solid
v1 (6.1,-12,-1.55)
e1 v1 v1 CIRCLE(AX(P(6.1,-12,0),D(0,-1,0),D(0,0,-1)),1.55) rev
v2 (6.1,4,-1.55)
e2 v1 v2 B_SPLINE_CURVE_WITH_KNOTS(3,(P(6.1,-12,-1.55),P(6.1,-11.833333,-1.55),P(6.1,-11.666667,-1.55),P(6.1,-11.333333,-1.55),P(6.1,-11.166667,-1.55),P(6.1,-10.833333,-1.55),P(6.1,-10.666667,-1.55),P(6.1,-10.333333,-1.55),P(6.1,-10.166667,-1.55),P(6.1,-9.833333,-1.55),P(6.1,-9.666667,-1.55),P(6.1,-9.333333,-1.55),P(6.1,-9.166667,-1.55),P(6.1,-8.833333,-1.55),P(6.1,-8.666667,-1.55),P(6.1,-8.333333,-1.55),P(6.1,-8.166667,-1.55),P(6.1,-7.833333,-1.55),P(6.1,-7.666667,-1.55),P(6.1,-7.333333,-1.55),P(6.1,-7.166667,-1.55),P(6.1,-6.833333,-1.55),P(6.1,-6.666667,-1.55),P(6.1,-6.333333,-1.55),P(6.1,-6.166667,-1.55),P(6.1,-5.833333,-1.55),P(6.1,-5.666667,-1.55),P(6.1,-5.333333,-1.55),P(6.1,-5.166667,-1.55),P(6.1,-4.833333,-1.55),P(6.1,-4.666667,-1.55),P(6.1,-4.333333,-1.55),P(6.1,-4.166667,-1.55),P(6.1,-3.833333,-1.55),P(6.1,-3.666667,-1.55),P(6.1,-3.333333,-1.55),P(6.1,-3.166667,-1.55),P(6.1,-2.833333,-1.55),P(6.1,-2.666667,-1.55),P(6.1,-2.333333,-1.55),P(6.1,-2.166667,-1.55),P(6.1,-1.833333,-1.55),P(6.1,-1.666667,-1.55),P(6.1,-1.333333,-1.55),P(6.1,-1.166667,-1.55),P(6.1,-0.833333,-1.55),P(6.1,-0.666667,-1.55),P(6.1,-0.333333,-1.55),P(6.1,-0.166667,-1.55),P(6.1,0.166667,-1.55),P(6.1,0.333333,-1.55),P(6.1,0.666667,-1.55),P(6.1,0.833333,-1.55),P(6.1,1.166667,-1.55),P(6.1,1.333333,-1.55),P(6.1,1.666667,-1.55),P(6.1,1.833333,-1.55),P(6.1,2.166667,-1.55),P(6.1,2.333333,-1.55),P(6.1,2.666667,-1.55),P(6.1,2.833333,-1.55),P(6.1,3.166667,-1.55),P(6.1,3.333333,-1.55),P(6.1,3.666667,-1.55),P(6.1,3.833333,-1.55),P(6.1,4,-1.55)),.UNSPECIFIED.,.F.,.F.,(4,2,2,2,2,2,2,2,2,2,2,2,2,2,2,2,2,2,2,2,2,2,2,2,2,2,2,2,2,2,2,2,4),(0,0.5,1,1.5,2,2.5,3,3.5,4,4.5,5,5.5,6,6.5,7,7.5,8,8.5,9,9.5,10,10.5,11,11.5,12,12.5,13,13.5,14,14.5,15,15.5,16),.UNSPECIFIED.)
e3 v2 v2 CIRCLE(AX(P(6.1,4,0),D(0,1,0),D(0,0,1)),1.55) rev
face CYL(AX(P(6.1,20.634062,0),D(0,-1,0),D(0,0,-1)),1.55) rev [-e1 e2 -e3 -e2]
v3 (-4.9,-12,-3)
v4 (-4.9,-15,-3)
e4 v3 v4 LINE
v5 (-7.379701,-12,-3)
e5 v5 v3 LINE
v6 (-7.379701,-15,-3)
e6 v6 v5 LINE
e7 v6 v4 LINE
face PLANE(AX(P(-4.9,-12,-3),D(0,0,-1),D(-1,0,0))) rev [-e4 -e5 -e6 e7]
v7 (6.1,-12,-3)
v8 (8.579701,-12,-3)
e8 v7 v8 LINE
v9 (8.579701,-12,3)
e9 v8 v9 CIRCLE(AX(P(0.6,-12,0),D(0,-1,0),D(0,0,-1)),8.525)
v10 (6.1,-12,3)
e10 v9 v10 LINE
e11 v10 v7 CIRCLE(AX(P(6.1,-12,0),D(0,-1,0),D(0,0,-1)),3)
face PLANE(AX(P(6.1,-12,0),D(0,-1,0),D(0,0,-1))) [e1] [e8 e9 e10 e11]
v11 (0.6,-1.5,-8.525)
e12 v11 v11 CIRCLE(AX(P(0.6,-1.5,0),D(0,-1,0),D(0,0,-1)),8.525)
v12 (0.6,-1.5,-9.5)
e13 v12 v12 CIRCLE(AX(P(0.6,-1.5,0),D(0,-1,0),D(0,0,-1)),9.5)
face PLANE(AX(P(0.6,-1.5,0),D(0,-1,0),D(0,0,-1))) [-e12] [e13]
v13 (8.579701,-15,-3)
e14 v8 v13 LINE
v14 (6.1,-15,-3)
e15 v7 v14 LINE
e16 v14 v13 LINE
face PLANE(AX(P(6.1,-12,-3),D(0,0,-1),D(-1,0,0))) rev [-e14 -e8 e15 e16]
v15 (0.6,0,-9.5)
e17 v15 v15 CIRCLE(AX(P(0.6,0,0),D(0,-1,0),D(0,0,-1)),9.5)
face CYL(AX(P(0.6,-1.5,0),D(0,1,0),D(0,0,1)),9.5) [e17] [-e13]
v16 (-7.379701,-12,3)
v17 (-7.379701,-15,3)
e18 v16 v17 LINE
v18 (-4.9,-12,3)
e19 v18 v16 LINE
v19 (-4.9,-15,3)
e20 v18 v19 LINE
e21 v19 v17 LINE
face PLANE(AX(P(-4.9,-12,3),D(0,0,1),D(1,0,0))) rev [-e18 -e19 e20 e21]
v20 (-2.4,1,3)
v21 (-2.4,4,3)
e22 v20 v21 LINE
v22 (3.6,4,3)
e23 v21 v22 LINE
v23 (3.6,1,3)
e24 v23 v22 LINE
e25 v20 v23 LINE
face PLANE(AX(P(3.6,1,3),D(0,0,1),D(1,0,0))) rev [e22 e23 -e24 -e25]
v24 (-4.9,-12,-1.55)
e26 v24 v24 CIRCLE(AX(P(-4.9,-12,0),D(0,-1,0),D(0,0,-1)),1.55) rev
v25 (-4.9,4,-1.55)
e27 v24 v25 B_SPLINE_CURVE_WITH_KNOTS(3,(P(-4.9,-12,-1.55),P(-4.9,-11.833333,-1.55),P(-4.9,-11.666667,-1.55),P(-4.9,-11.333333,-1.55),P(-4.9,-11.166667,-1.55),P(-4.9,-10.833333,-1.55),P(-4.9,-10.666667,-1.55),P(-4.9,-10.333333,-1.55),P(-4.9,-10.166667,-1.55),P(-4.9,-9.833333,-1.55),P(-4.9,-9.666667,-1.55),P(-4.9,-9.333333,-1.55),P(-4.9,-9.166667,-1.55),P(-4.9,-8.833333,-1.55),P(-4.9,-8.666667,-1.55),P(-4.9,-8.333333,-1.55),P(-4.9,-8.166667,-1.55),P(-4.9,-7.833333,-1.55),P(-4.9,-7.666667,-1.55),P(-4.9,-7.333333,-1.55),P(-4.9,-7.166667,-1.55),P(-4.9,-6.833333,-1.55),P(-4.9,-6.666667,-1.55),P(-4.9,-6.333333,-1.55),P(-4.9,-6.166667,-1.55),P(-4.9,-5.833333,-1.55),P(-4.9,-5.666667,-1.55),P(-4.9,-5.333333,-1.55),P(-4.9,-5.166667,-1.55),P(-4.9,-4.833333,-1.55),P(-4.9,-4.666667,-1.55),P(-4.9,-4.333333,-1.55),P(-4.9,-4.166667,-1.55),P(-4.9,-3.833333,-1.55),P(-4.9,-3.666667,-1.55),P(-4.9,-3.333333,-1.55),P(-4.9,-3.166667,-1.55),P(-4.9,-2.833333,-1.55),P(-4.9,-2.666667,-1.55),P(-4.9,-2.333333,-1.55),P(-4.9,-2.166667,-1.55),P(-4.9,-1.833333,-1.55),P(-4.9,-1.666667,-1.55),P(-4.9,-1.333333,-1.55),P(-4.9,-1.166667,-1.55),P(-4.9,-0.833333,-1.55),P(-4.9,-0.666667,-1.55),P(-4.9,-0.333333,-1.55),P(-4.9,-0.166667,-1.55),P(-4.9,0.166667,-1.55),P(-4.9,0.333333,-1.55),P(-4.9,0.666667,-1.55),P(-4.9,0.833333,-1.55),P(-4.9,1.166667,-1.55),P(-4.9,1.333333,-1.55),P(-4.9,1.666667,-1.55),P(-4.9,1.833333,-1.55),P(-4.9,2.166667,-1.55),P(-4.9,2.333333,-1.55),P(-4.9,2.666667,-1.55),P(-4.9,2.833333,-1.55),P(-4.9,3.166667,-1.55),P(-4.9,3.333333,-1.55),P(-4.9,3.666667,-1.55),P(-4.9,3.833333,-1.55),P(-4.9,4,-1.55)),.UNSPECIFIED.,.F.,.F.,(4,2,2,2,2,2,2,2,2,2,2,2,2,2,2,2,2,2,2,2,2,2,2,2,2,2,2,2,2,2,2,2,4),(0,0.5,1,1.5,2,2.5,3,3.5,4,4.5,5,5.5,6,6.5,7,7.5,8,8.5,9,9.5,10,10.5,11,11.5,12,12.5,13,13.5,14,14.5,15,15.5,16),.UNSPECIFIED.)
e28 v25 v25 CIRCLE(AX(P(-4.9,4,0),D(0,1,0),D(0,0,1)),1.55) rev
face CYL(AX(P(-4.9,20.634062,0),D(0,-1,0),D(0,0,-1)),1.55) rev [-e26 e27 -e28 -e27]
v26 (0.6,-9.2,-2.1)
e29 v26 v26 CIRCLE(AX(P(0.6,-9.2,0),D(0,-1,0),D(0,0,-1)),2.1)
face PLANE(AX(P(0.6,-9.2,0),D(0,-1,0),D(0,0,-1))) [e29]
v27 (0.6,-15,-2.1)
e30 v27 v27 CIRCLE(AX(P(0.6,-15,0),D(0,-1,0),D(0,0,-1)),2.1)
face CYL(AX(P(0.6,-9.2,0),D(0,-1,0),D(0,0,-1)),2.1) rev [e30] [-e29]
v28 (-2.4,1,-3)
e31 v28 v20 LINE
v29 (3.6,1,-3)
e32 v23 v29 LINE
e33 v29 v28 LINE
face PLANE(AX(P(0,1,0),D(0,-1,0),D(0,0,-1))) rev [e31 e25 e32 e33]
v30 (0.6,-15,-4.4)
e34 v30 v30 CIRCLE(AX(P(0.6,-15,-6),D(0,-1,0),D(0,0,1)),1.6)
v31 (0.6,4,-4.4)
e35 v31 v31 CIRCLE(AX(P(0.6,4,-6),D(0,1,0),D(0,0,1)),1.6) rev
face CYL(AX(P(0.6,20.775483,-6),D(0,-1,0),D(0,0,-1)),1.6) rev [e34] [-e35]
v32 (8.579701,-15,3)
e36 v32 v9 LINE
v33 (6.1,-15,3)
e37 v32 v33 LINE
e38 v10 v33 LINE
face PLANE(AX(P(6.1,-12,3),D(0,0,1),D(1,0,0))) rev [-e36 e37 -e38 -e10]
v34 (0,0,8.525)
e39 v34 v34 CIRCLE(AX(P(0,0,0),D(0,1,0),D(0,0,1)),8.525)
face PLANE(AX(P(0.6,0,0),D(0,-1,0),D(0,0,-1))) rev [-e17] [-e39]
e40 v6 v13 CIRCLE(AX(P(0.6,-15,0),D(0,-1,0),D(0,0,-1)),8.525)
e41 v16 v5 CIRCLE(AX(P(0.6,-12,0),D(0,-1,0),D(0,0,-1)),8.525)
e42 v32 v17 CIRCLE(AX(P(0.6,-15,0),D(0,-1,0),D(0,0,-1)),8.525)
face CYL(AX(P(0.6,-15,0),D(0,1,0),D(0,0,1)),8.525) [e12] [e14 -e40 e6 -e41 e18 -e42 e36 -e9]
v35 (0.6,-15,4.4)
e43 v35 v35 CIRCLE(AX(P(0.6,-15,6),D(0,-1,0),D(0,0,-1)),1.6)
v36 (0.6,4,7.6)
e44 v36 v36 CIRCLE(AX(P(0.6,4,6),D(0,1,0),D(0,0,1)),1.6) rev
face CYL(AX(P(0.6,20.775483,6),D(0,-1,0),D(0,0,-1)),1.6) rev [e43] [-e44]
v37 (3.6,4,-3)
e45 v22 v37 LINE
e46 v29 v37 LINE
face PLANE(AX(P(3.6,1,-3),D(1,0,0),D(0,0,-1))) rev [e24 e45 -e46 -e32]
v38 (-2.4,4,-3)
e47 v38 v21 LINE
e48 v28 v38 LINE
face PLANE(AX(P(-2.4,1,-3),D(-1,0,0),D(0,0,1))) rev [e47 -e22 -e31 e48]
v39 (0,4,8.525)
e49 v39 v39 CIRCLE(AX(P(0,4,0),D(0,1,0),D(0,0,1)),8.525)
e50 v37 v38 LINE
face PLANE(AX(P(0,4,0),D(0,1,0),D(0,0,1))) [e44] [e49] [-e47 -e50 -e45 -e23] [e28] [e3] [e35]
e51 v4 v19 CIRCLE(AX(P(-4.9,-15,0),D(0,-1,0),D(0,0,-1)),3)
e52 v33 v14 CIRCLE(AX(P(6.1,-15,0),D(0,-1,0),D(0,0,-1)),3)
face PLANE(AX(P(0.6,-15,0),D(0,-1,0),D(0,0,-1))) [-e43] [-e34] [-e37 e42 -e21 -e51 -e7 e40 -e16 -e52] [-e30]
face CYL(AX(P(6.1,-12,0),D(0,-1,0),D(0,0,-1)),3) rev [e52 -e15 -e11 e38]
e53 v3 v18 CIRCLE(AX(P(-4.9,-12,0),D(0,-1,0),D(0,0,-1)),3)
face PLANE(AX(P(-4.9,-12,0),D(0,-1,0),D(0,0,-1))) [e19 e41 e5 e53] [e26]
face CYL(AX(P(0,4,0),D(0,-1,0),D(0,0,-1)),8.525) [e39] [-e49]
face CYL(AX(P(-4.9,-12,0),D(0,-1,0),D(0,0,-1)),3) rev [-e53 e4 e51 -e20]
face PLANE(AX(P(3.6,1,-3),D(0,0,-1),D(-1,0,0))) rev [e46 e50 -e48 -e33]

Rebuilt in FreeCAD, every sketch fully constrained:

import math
import FreeCAD as App
import Part
import Sketcher
Q = App.Units.Quantity


def add_polygon(sketch, points):
    """Adds a closed chain of lines whose ends are joined by coincident constraints."""
    first, n = sketch.GeometryCount, len(points)
    for a, b in zip(points, points[1:] + points[:1]):
        sketch.addGeometry(Part.LineSegment(App.Vector(*a, 0), App.Vector(*b, 0)), False)
    for i in range(n):
        sketch.addConstraint(Sketcher.Constraint("Coincident", first + i, 2, first + (i + 1) % n, 1))

doc = App.newDocument("Part")
body = doc.addObject("PartDesign::Body", "Body")

sketch1 = body.newObject("Sketcher::SketchObject", "Sketch")
sketch1.AttachmentSupport = (doc.getObject("XZ_Plane"), [""])
sketch1.MapMode = "FlatFace"
sketch1.addGeometry(Part.Circle(App.Vector(0, 0, 0), App.Vector(0, 0, 1), 8.525), False)
sketch1.addConstraint([
    Sketcher.Constraint("Coincident", 0, 3, -1, 1),
    Sketcher.Constraint("Diameter", 0, Q("17.05 mm")),
])
pad1 = body.newObject("PartDesign::Pad", "Pad")
pad1.Profile = sketch1
pad1.Length = 4
pad1.Reversed = True

sketch2 = body.newObject("Sketcher::SketchObject", "Sketch001")
sketch2.AttachmentSupport = (doc.getObject("XZ_Plane"), [""])
sketch2.MapMode = "FlatFace"
sketch2.AttachmentOffset = App.Placement(App.Vector(0, 0, -4), App.Rotation())
sketch2.addGeometry(Part.Circle(App.Vector(1.2, 0, 0), App.Vector(0, 0, 1), 8.575), False)
sketch2.addConstraint([
    Sketcher.Constraint("PointOnObject", 0, 3, -1),
    Sketcher.Constraint("Diameter", 0, Q("17.15 mm")),
    Sketcher.Constraint("DistanceX", -1, 1, 0, 3, Q("1.2 mm")),
])
pad2 = body.newObject("PartDesign::Pad", "Pad001")
pad2.Profile = sketch2
pad2.Length = 4
pad2.Reversed = True

sketch3 = body.newObject("Sketcher::SketchObject", "Sketch002")
sketch3.AttachmentSupport = (doc.getObject("XZ_Plane"), [""])
sketch3.MapMode = "FlatFace"
sketch3.AttachmentOffset = App.Placement(App.Vector(0, 0, -8), App.Rotation())
sketch3.addGeometry(Part.Circle(App.Vector(0.6, 0, 0), App.Vector(0, 0, 1), 9.5), False)
sketch3.addConstraint([
    Sketcher.Constraint("PointOnObject", 0, 3, -1),
    Sketcher.Constraint("Diameter", 0, Q("19 mm")),
    Sketcher.Constraint("DistanceX", -1, 1, 0, 3, Q("0.6 mm")),
])
pad3 = body.newObject("PartDesign::Pad", "Pad002")
pad3.Profile = sketch3
pad3.Length = 1.25
pad3.Reversed = True

sketch4 = body.newObject("Sketcher::SketchObject", "Sketch003")
sketch4.AttachmentSupport = (doc.getObject("XZ_Plane"), [""])
sketch4.MapMode = "FlatFace"
sketch4.AttachmentOffset = App.Placement(App.Vector(0, 0, -9.25), App.Rotation())
sketch4.addGeometry(Part.Circle(App.Vector(0.6, 0, 0), App.Vector(0, 0, 1), 8.55), False)
sketch4.addConstraint([
    Sketcher.Constraint("PointOnObject", 0, 3, -1),
    Sketcher.Constraint("Diameter", 0, Q("17.1 mm")),
    Sketcher.Constraint("DistanceX", -1, 1, 0, 3, Q("0.6 mm")),
])
pad4 = body.newObject("PartDesign::Pad", "Pad003")
pad4.Profile = sketch4
pad4.Length = 7
pad4.Reversed = True

sketch5 = body.newObject("Sketcher::SketchObject", "Sketch004")
sketch5.AttachmentSupport = (doc.getObject("XZ_Plane"), [""])
sketch5.MapMode = "FlatFace"
sketch5.addGeometry(Part.Circle(App.Vector(0.6, 0, 0), App.Vector(0, 0, 1), 8.525), False)
sketch5.addConstraint([
    Sketcher.Constraint("PointOnObject", 0, 3, -1),
    Sketcher.Constraint("Diameter", 0, Q("17.05 mm")),
    Sketcher.Constraint("DistanceX", -1, 1, 0, 3, Q("0.6 mm")),
])
pad5 = body.newObject("PartDesign::Pad", "Pad004")
pad5.Profile = sketch5
pad5.Length = 15

sketch6 = body.newObject("Sketcher::SketchObject", "Sketch005")
sketch6.AttachmentSupport = (doc.getObject("XZ_Plane"), [""])
sketch6.MapMode = "FlatFace"
sketch6.AttachmentOffset = App.Placement(App.Vector(0, 0, 15), App.Rotation())
sketch6.addGeometry(Part.Circle(App.Vector(0.6, 0, 0), App.Vector(0, 0, 1), 2.1), False)
sketch6.addConstraint([
    Sketcher.Constraint("PointOnObject", 0, 3, -1),
    Sketcher.Constraint("Diameter", 0, Q("4.2 mm")),
    Sketcher.Constraint("DistanceX", -1, 1, 0, 3, Q("0.6 mm")),
])
pocket1 = body.newObject("PartDesign::Pocket", "Pocket")
pocket1.Profile = sketch6
pocket1.Length = 5.8

sketch7 = body.newObject("Sketcher::SketchObject", "Sketch006")
sketch7.AttachmentSupport = (doc.getObject("XZ_Plane"), [""])
sketch7.MapMode = "FlatFace"
sketch7.AttachmentOffset = App.Placement(App.Vector(0, 0, 1.5), App.Rotation())
sketch7.addGeometry(Part.Circle(App.Vector(0.6, 0, 0), App.Vector(0, 0, 1), 9.5), False)
sketch7.addConstraint([
    Sketcher.Constraint("PointOnObject", 0, 3, -1),
    Sketcher.Constraint("Diameter", 0, Q("19 mm")),
    Sketcher.Constraint("DistanceX", -1, 1, 0, 3, Q("0.6 mm")),
])
pad6 = body.newObject("PartDesign::Pad", "Pad005")
pad6.Profile = sketch7
pad6.Length = 1.5
pad6.Reversed = True

sketch8 = body.newObject("Sketcher::SketchObject", "Sketch007")
sketch8.AttachmentSupport = (doc.getObject("XZ_Plane"), [""])
sketch8.MapMode = "FlatFace"
sketch8.AttachmentOffset = App.Placement(App.Vector(0, 0, 15), App.Rotation())
sketch8.addGeometry(Part.Circle(App.Vector(0.6, 6, 0), App.Vector(0, 0, 1), 1.6), False)
sketch8.addConstraint([
    Sketcher.Constraint("Diameter", 0, Q("3.2 mm")),
    Sketcher.Constraint("DistanceY", -1, 1, 0, 3, Q("6 mm")),
    Sketcher.Constraint("DistanceX", -1, 1, 0, 3, Q("0.6 mm")),
])
pocket2 = body.newObject("PartDesign::Pocket", "Pocket001")
pocket2.Profile = sketch8
pocket2.Length = 31.25
doc.recompute()

datumline = body.newObject("PartDesign::Line", "DatumLine")
datumline.Placement = App.Placement(App.Vector(0.6, 0, 0), App.Rotation(App.Vector(0, 0, 1), App.Vector(0, 1, 0)))
polarpattern = body.newObject("PartDesign::PolarPattern", "PolarPattern")
polarpattern.Originals = [pocket2]
polarpattern.Axis = (datumline, [""])
polarpattern.Angle = 360
polarpattern.Occurrences = 2
body.Tip = polarpattern

sketch9 = body.newObject("Sketcher::SketchObject", "Sketch008")
sketch9.AttachmentSupport = (doc.getObject("XZ_Plane"), [""])
sketch9.MapMode = "FlatFace"
sketch9.AttachmentOffset = App.Placement(App.Vector(0, 0, 15), App.Rotation())
sketch9.addGeometry([
    Part.Circle(App.Vector(-4.9, 0, 0), App.Vector(0, 0, 1), 1.55),
    Part.Circle(App.Vector(6.1, 0, 0), App.Vector(0, 0, 1), 1.55),
], False)
sketch9.addConstraint([
    Sketcher.Constraint("Equal", 0, 1),
    Sketcher.Constraint("PointOnObject", 0, 3, -1),
    Sketcher.Constraint("PointOnObject", 1, 3, -1),
    Sketcher.Constraint("Diameter", 0, Q("3.1 mm")),
    Sketcher.Constraint("DistanceX", 0, 3, 1, 3, Q("11 mm")),
    Sketcher.Constraint("DistanceX", 0, 3, -1, 1, Q("4.9 mm")),
])
pocket3 = body.newObject("PartDesign::Pocket", "Pocket002")
pocket3.Profile = sketch9
pocket3.Length = 31.25

sketch10 = body.newObject("Sketcher::SketchObject", "Sketch009")
sketch10.AttachmentSupport = (doc.getObject("XZ_Plane"), [""])
sketch10.MapMode = "FlatFace"
sketch10.AttachmentOffset = App.Placement(App.Vector(0, 0, -16.25), App.Rotation())
sketch10.addGeometry([
    Part.Circle(App.Vector(-4.9, 0, 0), App.Vector(0, 0, 1), 2),
    Part.Circle(App.Vector(6.1, 0, 0), App.Vector(0, 0, 1), 2),
], False)
sketch10.addConstraint([
    Sketcher.Constraint("Equal", 0, 1),
    Sketcher.Constraint("PointOnObject", 0, 3, -1),
    Sketcher.Constraint("PointOnObject", 1, 3, -1),
    Sketcher.Constraint("Diameter", 0, Q("4 mm")),
    Sketcher.Constraint("DistanceX", 0, 3, 1, 3, Q("11 mm")),
    Sketcher.Constraint("DistanceX", 0, 3, -1, 1, Q("4.9 mm")),
])
pocket4 = body.newObject("PartDesign::Pocket", "Pocket003")
pocket4.Profile = sketch10
pocket4.Length = 4
pocket4.Reversed = True

sketch11 = body.newObject("Sketcher::SketchObject", "Sketch010")
sketch11.AttachmentSupport = (doc.getObject("XZ_Plane"), [""])
sketch11.MapMode = "FlatFace"
sketch11.AttachmentOffset = App.Placement(App.Vector(0, 0, -16.25), App.Rotation())
sketch11.addGeometry([
    Part.LineSegment(App.Vector(-2.4, 6, 0), App.Vector(-2.4, 10.872564, 0)),
    Part.LineSegment(App.Vector(-2.4, 10.872564, 0), App.Vector(3.6, 10.872564, 0)),
    Part.LineSegment(App.Vector(3.6, 10.872564, 0), App.Vector(3.6, 6, 0)),
    Part.ArcOfCircle(Part.Circle(App.Vector(0.6, 6, 0), App.Vector(0, 0, 1), 3), math.radians(180), math.radians(360)),
    Part.LineSegment(App.Vector(-2.4, -11.422146, 0), App.Vector(-2.4, -6, 0)),
    Part.ArcOfCircle(Part.Circle(App.Vector(0.6, -6, 0), App.Vector(0, 0, 1), 3), math.radians(0), math.radians(180)),
    Part.LineSegment(App.Vector(3.6, -6, 0), App.Vector(3.6, -11.422146, 0)),
    Part.LineSegment(App.Vector(3.6, -11.422146, 0), App.Vector(-2.4, -11.422146, 0)),
], False)
sketch11.addConstraint([
    Sketcher.Constraint("Coincident", 0, 2, 1, 1),
    Sketcher.Constraint("Coincident", 1, 2, 2, 1),
    Sketcher.Constraint("Tangent", 2, 2, 3, 2),
    Sketcher.Constraint("Tangent", 3, 1, 0, 1),
    Sketcher.Constraint("Tangent", 4, 2, 5, 2),
    Sketcher.Constraint("Tangent", 5, 1, 6, 1),
    Sketcher.Constraint("Coincident", 6, 2, 7, 1),
    Sketcher.Constraint("Coincident", 7, 2, 4, 1),
    Sketcher.Constraint("Vertical", 0),
    Sketcher.Constraint("Horizontal", 1),
    Sketcher.Constraint("Vertical", 2),
    Sketcher.Constraint("Vertical", 4),
    Sketcher.Constraint("Vertical", 6),
    Sketcher.Constraint("Horizontal", 7),
    Sketcher.Constraint("Equal", 3, 5),
    Sketcher.Constraint("Symmetric", 3, 3, 5, 3, -1),
    Sketcher.Constraint("Radius", 3, Q("3 mm")),
    Sketcher.Constraint("DistanceY", -1, 1, 3, 3, Q("6 mm")),
    Sketcher.Constraint("DistanceX", -1, 1, 3, 3, Q("0.6 mm")),
    Sketcher.Constraint("DistanceY", 0, 1, 0, 2, Q("4.872564 mm")),
    Sketcher.Constraint("DistanceY", 4, 1, 4, 2, Q("5.422146 mm")),
])
pocket5 = body.newObject("PartDesign::Pocket", "Pocket004")
pocket5.Profile = sketch11
pocket5.Length = 3
pocket5.Reversed = True

sketch12 = body.newObject("Sketcher::SketchObject", "Sketch011")
sketch12.AttachmentSupport = (doc.getObject("XZ_Plane"), [""])
sketch12.MapMode = "FlatFace"
sketch12.AttachmentOffset = App.Placement(App.Vector(0, 0, 15), App.Rotation())
sketch12.addGeometry([
    Part.LineSegment(App.Vector(-4.9, 3, 0), App.Vector(-9.719929, 3, 0)),
    Part.LineSegment(App.Vector(-9.719929, 3, 0), App.Vector(-9.719929, -3, 0)),
    Part.LineSegment(App.Vector(-9.719929, -3, 0), App.Vector(-4.9, -3, 0)),
    Part.ArcOfCircle(Part.Circle(App.Vector(-4.9, 0, 0), App.Vector(0, 0, 1), 3), math.radians(-90), math.radians(90)),
    Part.LineSegment(App.Vector(10.889396, 3, 0), App.Vector(6.1, 3, 0)),
    Part.ArcOfCircle(Part.Circle(App.Vector(6.1, 0, 0), App.Vector(0, 0, 1), 3), math.radians(90), math.radians(270)),
    Part.LineSegment(App.Vector(6.1, -3, 0), App.Vector(10.889396, -3, 0)),
    Part.LineSegment(App.Vector(10.889396, -3, 0), App.Vector(10.889396, 3, 0)),
], False)
sketch12.addConstraint([
    Sketcher.Constraint("Coincident", 0, 2, 1, 1),
    Sketcher.Constraint("Coincident", 1, 2, 2, 1),
    Sketcher.Constraint("Tangent", 2, 2, 3, 1),
    Sketcher.Constraint("Tangent", 3, 2, 0, 1),
    Sketcher.Constraint("Tangent", 4, 2, 5, 1),
    Sketcher.Constraint("Tangent", 5, 2, 6, 1),
    Sketcher.Constraint("Coincident", 6, 2, 7, 1),
    Sketcher.Constraint("Coincident", 7, 2, 4, 1),
    Sketcher.Constraint("Horizontal", 0),
    Sketcher.Constraint("Vertical", 1),
    Sketcher.Constraint("Horizontal", 2),
    Sketcher.Constraint("Horizontal", 4),
    Sketcher.Constraint("Horizontal", 6),
    Sketcher.Constraint("Vertical", 7),
    Sketcher.Constraint("Equal", 3, 5),
    Sketcher.Constraint("PointOnObject", 3, 3, -1),
    Sketcher.Constraint("PointOnObject", 5, 3, -1),
    Sketcher.Constraint("Radius", 3, Q("3 mm")),
    Sketcher.Constraint("DistanceX", 3, 3, 5, 3, Q("11 mm")),
    Sketcher.Constraint("DistanceX", 3, 3, -1, 1, Q("4.9 mm")),
    Sketcher.Constraint("DistanceX", 0, 2, 0, 1, Q("4.819929 mm")),
    Sketcher.Constraint("DistanceX", 4, 2, 4, 1, Q("4.789396 mm")),
])
pocket6 = body.newObject("PartDesign::Pocket", "Pocket005")
pocket6.Profile = sketch12
pocket6.Length = 3

sketch13 = body.newObject("Sketcher::SketchObject", "Sketch012")
sketch13.AttachmentSupport = (doc.getObject("XZ_Plane"), [""])
sketch13.MapMode = "FlatFace"
sketch13.AttachmentOffset = App.Placement(App.Vector(0, 0, -16.25), App.Rotation())
add_polygon(sketch13, [(-10.796133, -10.881724), (-10.796133, 10.908104), (11.547674, 10.908104), (11.547674, -10.881724)])
sketch13.addConstraint([
    Sketcher.Constraint("Vertical", 0),
    Sketcher.Constraint("Horizontal", 1),
    Sketcher.Constraint("Vertical", 2),
    Sketcher.Constraint("Horizontal", 3),
    Sketcher.Constraint("DistanceX", 1, 1, 1, 2, Q("22.343806 mm")),
    Sketcher.Constraint("DistanceY", 0, 1, 0, 2, Q("21.789827 mm")),
    Sketcher.Constraint("DistanceX", 0, 2, -1, 1, Q("10.796133 mm")),
    Sketcher.Constraint("DistanceY", -1, 1, 0, 2, Q("10.908104 mm")),
])
pocket7 = body.newObject("PartDesign::Pocket", "Pocket006")
pocket7.Profile = sketch13
pocket7.Length = 12.25
pocket7.Reversed = True

sketch14 = body.newObject("Sketcher::SketchObject", "Sketch013")
sketch14.AttachmentSupport = (doc.getObject("XZ_Plane"), [""])
sketch14.MapMode = "FlatFace"
sketch14.AttachmentOffset = App.Placement(App.Vector(0, 0, -4), App.Rotation())
add_polygon(sketch14, [(-2.4, -3), (-2.4, 3), (3.6, 3), (3.6, -3)])
sketch14.addConstraint([
    Sketcher.Constraint("Vertical", 0),
    Sketcher.Constraint("Horizontal", 1),
    Sketcher.Constraint("Vertical", 2),
    Sketcher.Constraint("Horizontal", 3),
    Sketcher.Constraint("Equal", 3, 0),
    Sketcher.Constraint("DistanceX", 1, 1, 1, 2, Q("6 mm")),
    Sketcher.Constraint("DistanceY", -1, 1, 0, 2, Q("3 mm")),
    Sketcher.Constraint("DistanceX", 0, 2, -1, 1, Q("2.4 mm")),
])
pocket8 = body.newObject("PartDesign::Pocket", "Pocket007")
pocket8.Profile = sketch14
pocket8.Length = 3
pocket8.Reversed = True

doc.recompute()
